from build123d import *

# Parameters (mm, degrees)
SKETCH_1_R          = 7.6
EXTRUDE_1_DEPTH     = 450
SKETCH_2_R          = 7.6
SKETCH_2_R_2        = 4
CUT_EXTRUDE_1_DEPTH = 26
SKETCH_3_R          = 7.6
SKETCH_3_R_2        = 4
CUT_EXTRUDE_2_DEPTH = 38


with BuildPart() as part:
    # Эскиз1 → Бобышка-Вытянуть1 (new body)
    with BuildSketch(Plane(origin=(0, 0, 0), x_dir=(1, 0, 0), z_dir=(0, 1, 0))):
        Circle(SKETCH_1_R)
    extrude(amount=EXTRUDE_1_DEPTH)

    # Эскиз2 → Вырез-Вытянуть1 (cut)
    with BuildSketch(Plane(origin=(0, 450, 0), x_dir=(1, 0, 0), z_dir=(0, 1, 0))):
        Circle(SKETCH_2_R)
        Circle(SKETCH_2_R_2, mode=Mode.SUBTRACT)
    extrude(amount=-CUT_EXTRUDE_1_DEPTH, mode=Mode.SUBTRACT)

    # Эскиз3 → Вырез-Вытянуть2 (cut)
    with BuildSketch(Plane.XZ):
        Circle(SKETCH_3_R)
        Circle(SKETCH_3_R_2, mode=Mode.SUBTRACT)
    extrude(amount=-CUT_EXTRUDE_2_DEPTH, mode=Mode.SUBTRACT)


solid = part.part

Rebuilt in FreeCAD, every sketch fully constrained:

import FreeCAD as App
import Part
import Sketcher

V = App.Vector

doc = App.newDocument("Part")
body = doc.addObject("PartDesign::Body", "Body")

# Sketch on XZ plane
sketch1 = body.newObject("Sketcher::SketchObject", "Sketch")
sketch1.AttachmentSupport = (doc.getObject("XZ_Plane"), [""])
sketch1.MapMode = "FlatFace"
sketch1.addGeometry(Part.Circle(V(0, 0, 0), V(0, 0, 1), 7.6), False)
sketch1.addConstraint(Sketcher.Constraint("Coincident", 0, 3, -1, 1))
sketch1.addConstraint(Sketcher.Constraint("Diameter", 0, 15.2))
pad1 = body.newObject("PartDesign::Pad", "Pad")
pad1.Profile = sketch1
pad1.Length = 450
pad1.Reversed = True

# Sketch on XZ plane
sketch2 = body.newObject("Sketcher::SketchObject", "Sketch001")
sketch2.AttachmentSupport = (doc.getObject("XZ_Plane"), [""])
sketch2.MapMode = "FlatFace"
sketch2.AttachmentOffset = App.Placement(V(0, 0, -450), App.Rotation())
sketch2.addGeometry(Part.Circle(V(0, 0, 0), V(0, 0, 1), 7.6), False)
sketch2.addGeometry(Part.Circle(V(0, 0, 0), V(0, 0, 1), 4), False)
sketch2.addConstraint(Sketcher.Constraint("Coincident", 0, 3, -1, 1))
sketch2.addConstraint(Sketcher.Constraint("Coincident", 1, 3, -1, 1))
sketch2.addConstraint(Sketcher.Constraint("Diameter", 1, 8.0))
sketch2.addConstraint(Sketcher.Constraint("Diameter", 0, 15.2))
pocket1 = body.newObject("PartDesign::Pocket", "Pocket")
pocket1.Profile = sketch2
pocket1.Length = 26
pocket1.Reversed = True

# Sketch on XZ plane
sketch3 = body.newObject("Sketcher::SketchObject", "Sketch002")
sketch3.AttachmentSupport = (doc.getObject("XZ_Plane"), [""])
sketch3.MapMode = "FlatFace"
sketch3.addGeometry(Part.Circle(V(0, 0, 0), V(0, 0, 1), 7.6), False)
sketch3.addGeometry(Part.Circle(V(0, 0, 0), V(0, 0, 1), 4), False)
sketch3.addConstraint(Sketcher.Constraint("Coincident", 0, 3, -1, 1))
sketch3.addConstraint(Sketcher.Constraint("Coincident", 1, 3, -1, 1))
sketch3.addConstraint(Sketcher.Constraint("Diameter", 1, 8.0))
sketch3.addConstraint(Sketcher.Constraint("Diameter", 0, 15.2))
pocket2 = body.newObject("PartDesign::Pocket", "Pocket001")
pocket2.Profile = sketch3
pocket2.Length = 38

doc.recompute()
